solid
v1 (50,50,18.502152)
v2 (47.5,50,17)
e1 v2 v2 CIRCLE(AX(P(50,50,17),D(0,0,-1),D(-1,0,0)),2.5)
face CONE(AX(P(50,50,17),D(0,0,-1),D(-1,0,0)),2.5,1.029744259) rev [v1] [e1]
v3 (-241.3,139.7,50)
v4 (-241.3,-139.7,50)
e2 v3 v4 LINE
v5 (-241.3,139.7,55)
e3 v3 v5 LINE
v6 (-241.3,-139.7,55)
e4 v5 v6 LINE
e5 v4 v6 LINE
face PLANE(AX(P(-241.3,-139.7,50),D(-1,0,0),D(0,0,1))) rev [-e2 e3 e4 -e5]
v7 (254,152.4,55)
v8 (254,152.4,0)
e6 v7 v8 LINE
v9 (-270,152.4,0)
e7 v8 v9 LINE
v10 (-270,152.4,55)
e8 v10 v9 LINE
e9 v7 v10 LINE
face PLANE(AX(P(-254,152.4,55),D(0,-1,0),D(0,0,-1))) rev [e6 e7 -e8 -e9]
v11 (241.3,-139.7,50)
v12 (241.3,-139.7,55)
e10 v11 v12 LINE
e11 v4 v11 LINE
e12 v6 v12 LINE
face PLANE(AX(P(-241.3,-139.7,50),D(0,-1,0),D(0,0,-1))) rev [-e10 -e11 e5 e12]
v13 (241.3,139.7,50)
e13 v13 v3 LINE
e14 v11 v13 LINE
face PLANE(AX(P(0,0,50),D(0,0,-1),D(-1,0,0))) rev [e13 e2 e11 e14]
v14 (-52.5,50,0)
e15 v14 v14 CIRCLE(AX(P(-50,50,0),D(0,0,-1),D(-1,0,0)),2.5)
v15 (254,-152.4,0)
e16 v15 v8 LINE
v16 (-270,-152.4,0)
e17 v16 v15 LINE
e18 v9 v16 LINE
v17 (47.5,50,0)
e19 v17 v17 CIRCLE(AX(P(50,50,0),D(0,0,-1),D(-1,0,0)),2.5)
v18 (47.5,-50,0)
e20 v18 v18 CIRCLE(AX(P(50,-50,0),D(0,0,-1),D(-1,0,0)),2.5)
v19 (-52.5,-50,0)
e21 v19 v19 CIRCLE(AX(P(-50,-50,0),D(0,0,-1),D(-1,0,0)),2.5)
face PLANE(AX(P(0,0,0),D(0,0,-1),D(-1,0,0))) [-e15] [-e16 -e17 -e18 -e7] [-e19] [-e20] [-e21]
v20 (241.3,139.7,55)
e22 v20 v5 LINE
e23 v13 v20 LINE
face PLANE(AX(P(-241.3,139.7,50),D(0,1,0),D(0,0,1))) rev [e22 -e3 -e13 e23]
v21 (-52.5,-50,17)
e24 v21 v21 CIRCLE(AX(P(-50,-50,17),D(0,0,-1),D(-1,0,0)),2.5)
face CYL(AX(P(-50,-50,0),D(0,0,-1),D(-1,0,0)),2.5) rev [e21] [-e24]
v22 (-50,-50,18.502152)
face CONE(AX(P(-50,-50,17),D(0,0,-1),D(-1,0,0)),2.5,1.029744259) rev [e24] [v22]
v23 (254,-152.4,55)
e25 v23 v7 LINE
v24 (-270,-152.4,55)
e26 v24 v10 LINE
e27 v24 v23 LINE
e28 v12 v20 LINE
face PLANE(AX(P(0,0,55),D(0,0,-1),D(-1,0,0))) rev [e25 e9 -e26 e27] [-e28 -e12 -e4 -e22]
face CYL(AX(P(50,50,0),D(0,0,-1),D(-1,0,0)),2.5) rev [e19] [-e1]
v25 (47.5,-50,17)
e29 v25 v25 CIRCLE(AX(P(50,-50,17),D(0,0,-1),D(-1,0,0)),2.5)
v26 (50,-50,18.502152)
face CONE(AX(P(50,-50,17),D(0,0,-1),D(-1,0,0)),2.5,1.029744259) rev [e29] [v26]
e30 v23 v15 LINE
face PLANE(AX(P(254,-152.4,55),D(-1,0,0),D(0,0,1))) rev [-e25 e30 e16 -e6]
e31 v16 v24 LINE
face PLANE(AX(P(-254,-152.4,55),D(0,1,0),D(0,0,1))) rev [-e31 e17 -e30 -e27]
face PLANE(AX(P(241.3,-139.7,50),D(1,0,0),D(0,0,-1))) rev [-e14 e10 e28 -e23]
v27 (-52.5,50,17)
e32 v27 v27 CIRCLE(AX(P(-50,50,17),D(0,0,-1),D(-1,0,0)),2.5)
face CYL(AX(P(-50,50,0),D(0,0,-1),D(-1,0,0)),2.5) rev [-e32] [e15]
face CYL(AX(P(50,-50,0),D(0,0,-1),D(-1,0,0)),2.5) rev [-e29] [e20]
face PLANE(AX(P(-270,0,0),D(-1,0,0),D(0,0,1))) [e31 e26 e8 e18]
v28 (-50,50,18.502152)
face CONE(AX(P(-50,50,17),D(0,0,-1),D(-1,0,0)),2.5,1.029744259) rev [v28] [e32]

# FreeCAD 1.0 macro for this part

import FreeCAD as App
import Part
import Sketcher
Q = App.Units.Quantity


def add_polygon(sketch, points):
    """Adds a closed chain of lines whose ends are joined by coincident constraints."""
    first, n = sketch.GeometryCount, len(points)
    for a, b in zip(points, points[1:] + points[:1]):
        sketch.addGeometry(Part.LineSegment(App.Vector(*a, 0), App.Vector(*b, 0)), False)
    for i in range(n):
        sketch.addConstraint(Sketcher.Constraint("Coincident", first + i, 2, first + (i + 1) % n, 1))

doc = App.newDocument("Part")
body = doc.addObject("PartDesign::Body", "Body")

# Sketch on XY plane
sketch1 = doc.addObject("Sketcher::SketchObject", "Sketch")
body.addObject(sketch1)
sketch1.AttachmentSupport = (doc.XY_Plane, [""])
sketch1.MapMode = "FlatFace"
add_polygon(sketch1, [(-254, 152.4), (-254, -152.4), (254, -152.4), (254, 152.4)])  # lines 0-3
sketch1.addConstraint([
    Sketcher.Constraint("Vertical", 0),
    Sketcher.Constraint("Horizontal", 1),
    Sketcher.Constraint("Vertical", 2),
    Sketcher.Constraint("Horizontal", 3),
    Sketcher.Constraint("Symmetric", 0, 2, 2, 2, -1, 1),
    Sketcher.Constraint("DistanceX", 1, 1, 1, 2, Q("508 mm")),
    Sketcher.Constraint("DistanceY", 0, 2, 0, 1, Q("304.8 mm")),
])
pad1 = doc.addObject("PartDesign::Pad", "Pad")
body.addObject(pad1)
pad1.Profile = sketch1
pad1.Length = 55

# Sketch on XY plane
sketch2 = doc.addObject("Sketcher::SketchObject", "Sketch001")
body.addObject(sketch2)
sketch2.AttachmentSupport = (doc.XY_Plane, [""])
sketch2.MapMode = "FlatFace"
sketch2.addGeometry([
    Part.Circle(App.Vector(-50, 50, 0), App.Vector(0, 0, 1), 2.5),
    Part.Circle(App.Vector(50, -50, 0), App.Vector(0, 0, 1), 2.5),
    Part.Circle(App.Vector(50, 50, 0), App.Vector(0, 0, 1), 2.5),
    Part.Circle(App.Vector(-50, -50, 0), App.Vector(0, 0, 1), 2.5),
], False)
sketch2.addConstraint([
    Sketcher.Constraint("Equal", 0, 1),
    Sketcher.Constraint("Equal", 1, 2),
    Sketcher.Constraint("Equal", 2, 3),
    Sketcher.Constraint("Symmetric", 0, 3, 1, 3, -1, 1),
    Sketcher.Constraint("Symmetric", 2, 3, 3, 3, -1, 1),
    Sketcher.Constraint("Symmetric", 0, 3, 2, 3, -2),
    Sketcher.Constraint("Diameter", 0, Q("5 mm")),
    Sketcher.Constraint("DistanceX", 0, 3, -1, 1, Q("50 mm")),
    Sketcher.Constraint("DistanceY", -1, 1, 0, 3, Q("50 mm")),
])
doc.recompute()
hole = doc.addObject("PartDesign::Hole", "Hole")
body.addObject(hole)
hole.Profile = sketch2
hole.ThreadType = "None"
hole.Diameter = 5
hole.DepthType = "Dimension"
hole.Depth = 17
hole.DrillPoint = "Angled"
hole.DrillPointAngle = 118
hole.Reversed = True

# Sketch on XY plane
sketch3 = doc.addObject("Sketcher::SketchObject", "Sketch002")
body.addObject(sketch3)
sketch3.AttachmentSupport = (doc.XY_Plane, [""])
sketch3.MapMode = "FlatFace"
sketch3.AttachmentOffset = App.Placement(App.Vector(0, 0, 55), App.Rotation())
add_polygon(sketch3, [(-241.3, 139.7), (-241.3, -139.7), (241.3, -139.7), (241.3, 139.7)])  # lines 0-3
sketch3.addConstraint([
    Sketcher.Constraint("Vertical", 0),
    Sketcher.Constraint("Horizontal", 1),
    Sketcher.Constraint("Vertical", 2),
    Sketcher.Constraint("Horizontal", 3),
    Sketcher.Constraint("Symmetric", 0, 2, 2, 2, -1, 1),
    Sketcher.Constraint("DistanceX", 1, 1, 1, 2, Q("482.6 mm")),
    Sketcher.Constraint("DistanceY", 0, 2, 0, 1, Q("279.4 mm")),
])
pocket1 = doc.addObject("PartDesign::Pocket", "Pocket")
body.addObject(pocket1)
pocket1.Profile = sketch3
pocket1.Length = 5

# Sketch on YZ plane
sketch4 = doc.addObject("Sketcher::SketchObject", "Sketch003")
body.addObject(sketch4)
sketch4.AttachmentSupport = (doc.YZ_Plane, [""])
sketch4.MapMode = "FlatFace"
sketch4.AttachmentOffset = App.Placement(App.Vector(0, 0, -254), App.Rotation())
add_polygon(sketch4, [(152.4, 0), (-152.4, 0), (-152.4, 55), (152.4, 55)])  # lines 0-3
sketch4.addConstraint([
    Sketcher.Constraint("Horizontal", 0),
    Sketcher.Constraint("Vertical", 1),
    Sketcher.Constraint("Horizontal", 2),
    Sketcher.Constraint("Vertical", 3),
    Sketcher.Constraint("Symmetric", 0, 2, 3, 2, -1, 1),
    Sketcher.Constraint("DistanceY", 1, 1, 1, 2, Q("55 mm")),
    Sketcher.Constraint("DistanceX", 0, 2, 0, 1, Q("304.8 mm")),
])
pad2 = doc.addObject("PartDesign::Pad", "Pad001")
body.addObject(pad2)
pad2.Profile = sketch4
pad2.Length = 16
pad2.Reversed = True

doc.recompute()
